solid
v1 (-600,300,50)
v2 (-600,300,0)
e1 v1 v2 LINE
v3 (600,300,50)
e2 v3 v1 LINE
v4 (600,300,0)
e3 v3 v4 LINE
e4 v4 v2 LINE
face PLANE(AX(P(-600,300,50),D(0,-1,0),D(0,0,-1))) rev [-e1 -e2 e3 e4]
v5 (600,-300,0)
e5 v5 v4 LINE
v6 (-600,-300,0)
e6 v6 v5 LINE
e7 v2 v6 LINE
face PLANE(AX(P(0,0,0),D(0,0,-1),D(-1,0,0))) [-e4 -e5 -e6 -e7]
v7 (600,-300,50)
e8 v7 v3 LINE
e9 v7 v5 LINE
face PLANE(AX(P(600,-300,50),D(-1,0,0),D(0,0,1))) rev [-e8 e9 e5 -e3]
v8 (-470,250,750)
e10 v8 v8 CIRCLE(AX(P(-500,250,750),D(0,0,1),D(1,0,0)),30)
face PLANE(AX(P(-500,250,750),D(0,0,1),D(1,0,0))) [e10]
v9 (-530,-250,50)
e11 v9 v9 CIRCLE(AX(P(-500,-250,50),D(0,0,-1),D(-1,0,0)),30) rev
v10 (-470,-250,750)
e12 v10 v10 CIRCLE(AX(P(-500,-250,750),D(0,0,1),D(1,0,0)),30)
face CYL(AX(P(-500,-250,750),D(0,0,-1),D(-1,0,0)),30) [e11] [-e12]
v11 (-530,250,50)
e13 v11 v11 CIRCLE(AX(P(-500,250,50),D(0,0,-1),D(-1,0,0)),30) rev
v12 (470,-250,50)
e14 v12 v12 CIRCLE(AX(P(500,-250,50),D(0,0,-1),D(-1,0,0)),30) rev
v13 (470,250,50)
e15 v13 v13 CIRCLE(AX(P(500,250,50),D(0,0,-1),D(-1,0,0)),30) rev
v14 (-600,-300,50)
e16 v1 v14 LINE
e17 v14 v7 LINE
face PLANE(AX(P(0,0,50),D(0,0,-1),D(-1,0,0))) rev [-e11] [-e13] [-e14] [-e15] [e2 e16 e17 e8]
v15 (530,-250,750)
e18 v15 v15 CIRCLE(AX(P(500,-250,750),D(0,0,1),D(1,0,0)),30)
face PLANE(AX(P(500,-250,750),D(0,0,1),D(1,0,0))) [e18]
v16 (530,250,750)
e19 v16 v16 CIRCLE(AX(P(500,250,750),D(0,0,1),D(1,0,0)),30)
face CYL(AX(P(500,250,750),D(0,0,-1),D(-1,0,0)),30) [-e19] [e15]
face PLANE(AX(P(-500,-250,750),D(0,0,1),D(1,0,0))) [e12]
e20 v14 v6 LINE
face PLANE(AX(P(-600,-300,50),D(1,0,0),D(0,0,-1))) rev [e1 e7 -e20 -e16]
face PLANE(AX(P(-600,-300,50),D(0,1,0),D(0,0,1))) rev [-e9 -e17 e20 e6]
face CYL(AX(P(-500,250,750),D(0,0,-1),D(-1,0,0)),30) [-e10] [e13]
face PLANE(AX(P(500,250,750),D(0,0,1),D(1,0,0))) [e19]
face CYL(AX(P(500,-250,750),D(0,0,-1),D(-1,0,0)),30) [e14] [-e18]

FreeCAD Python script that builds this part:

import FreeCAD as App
import Part
import Sketcher

V = App.Vector

doc = App.newDocument("Part")
body = doc.addObject("PartDesign::Body", "Body")

sketch1 = body.newObject("Sketcher::SketchObject", "Sketch")
sketch1.AttachmentSupport = (doc.getObject("XY_Plane"), [""])
sketch1.MapMode = "FlatFace"
sketch1.addGeometry(Part.LineSegment(V(-600, 300, 0), V(-600, -300, 0)), False)
sketch1.addGeometry(Part.LineSegment(V(-600, -300, 0), V(600, -300, 0)), False)
sketch1.addGeometry(Part.LineSegment(V(600, -300, 0), V(600, 300, 0)), False)
sketch1.addGeometry(Part.LineSegment(V(600, 300, 0), V(-600, 300, 0)), False)
sketch1.addConstraint(Sketcher.Constraint("Coincident", 0, 2, 1, 1))
sketch1.addConstraint(Sketcher.Constraint("Coincident", 1, 2, 2, 1))
sketch1.addConstraint(Sketcher.Constraint("Coincident", 2, 2, 3, 1))
sketch1.addConstraint(Sketcher.Constraint("Coincident", 3, 2, 0, 1))
sketch1.addConstraint(Sketcher.Constraint("Vertical", 0))
sketch1.addConstraint(Sketcher.Constraint("Horizontal", 1))
sketch1.addConstraint(Sketcher.Constraint("Vertical", 2))
sketch1.addConstraint(Sketcher.Constraint("Horizontal", 3))
sketch1.addConstraint(Sketcher.Constraint("Symmetric", 0, 2, 2, 2, -1, 1))
sketch1.addConstraint(Sketcher.Constraint("DistanceX", 1, 1, 1, 2, 1200.0))
sketch1.addConstraint(Sketcher.Constraint("DistanceY", 0, 2, 0, 1, 600.0))
pad1 = body.newObject("PartDesign::Pad", "Pad")
pad1.Profile = sketch1
pad1.Length = 50

sketch2 = body.newObject("Sketcher::SketchObject", "Sketch001")
sketch2.AttachmentSupport = (doc.getObject("XY_Plane"), [""])
sketch2.MapMode = "FlatFace"
sketch2.addGeometry(Part.Circle(V(-500, -250, 0), V(0, 0, 1), 30), False)
sketch2.addConstraint(Sketcher.Constraint("Diameter", 0, 60.0))
sketch2.addConstraint(Sketcher.Constraint("DistanceX", 0, 3, -1, 1, 500.0))
sketch2.addConstraint(Sketcher.Constraint("DistanceY", 0, 3, -1, 1, 250.0))
pad2 = body.newObject("PartDesign::Pad", "Pad001")
pad2.Profile = sketch2
pad2.Length = 750

sketch3 = body.newObject("Sketcher::SketchObject", "Sketch002")
sketch3.AttachmentSupport = (doc.getObject("XY_Plane"), [""])
sketch3.MapMode = "FlatFace"
sketch3.addGeometry(Part.Circle(V(500, -250, 0), V(0, 0, 1), 30), False)
sketch3.addConstraint(Sketcher.Constraint("Diameter", 0, 60.0))
sketch3.addConstraint(Sketcher.Constraint("DistanceX", -1, 1, 0, 3, 500.0))
sketch3.addConstraint(Sketcher.Constraint("DistanceY", 0, 3, -1, 1, 250.0))
pad3 = body.newObject("PartDesign::Pad", "Pad002")
pad3.Profile = sketch3
pad3.Length = 750

sketch4 = body.newObject("Sketcher::SketchObject", "Sketch003")
sketch4.AttachmentSupport = (doc.getObject("XY_Plane"), [""])
sketch4.MapMode = "FlatFace"
sketch4.addGeometry(Part.Circle(V(-500, 250, 0), V(0, 0, 1), 30), False)
sketch4.addConstraint(Sketcher.Constraint("Diameter", 0, 60.0))
sketch4.addConstraint(Sketcher.Constraint("DistanceX", 0, 3, -1, 1, 500.0))
sketch4.addConstraint(Sketcher.Constraint("DistanceY", -1, 1, 0, 3, 250.0))
pad4 = body.newObject("PartDesign::Pad", "Pad003")
pad4.Profile = sketch4
pad4.Length = 750

sketch5 = body.newObject("Sketcher::SketchObject", "Sketch004")
sketch5.AttachmentSupport = (doc.getObject("XY_Plane"), [""])
sketch5.MapMode = "FlatFace"
sketch5.addGeometry(Part.Circle(V(500, 250, 0), V(0, 0, 1), 30), False)
sketch5.addConstraint(Sketcher.Constraint("Diameter", 0, 60.0))
sketch5.addConstraint(Sketcher.Constraint("DistanceX", -1, 1, 0, 3, 500.0))
sketch5.addConstraint(Sketcher.Constraint("DistanceY", -1, 1, 0, 3, 250.0))
pad5 = body.newObject("PartDesign::Pad", "Pad004")
pad5.Profile = sketch5
pad5.Length = 750

doc.recompute()
